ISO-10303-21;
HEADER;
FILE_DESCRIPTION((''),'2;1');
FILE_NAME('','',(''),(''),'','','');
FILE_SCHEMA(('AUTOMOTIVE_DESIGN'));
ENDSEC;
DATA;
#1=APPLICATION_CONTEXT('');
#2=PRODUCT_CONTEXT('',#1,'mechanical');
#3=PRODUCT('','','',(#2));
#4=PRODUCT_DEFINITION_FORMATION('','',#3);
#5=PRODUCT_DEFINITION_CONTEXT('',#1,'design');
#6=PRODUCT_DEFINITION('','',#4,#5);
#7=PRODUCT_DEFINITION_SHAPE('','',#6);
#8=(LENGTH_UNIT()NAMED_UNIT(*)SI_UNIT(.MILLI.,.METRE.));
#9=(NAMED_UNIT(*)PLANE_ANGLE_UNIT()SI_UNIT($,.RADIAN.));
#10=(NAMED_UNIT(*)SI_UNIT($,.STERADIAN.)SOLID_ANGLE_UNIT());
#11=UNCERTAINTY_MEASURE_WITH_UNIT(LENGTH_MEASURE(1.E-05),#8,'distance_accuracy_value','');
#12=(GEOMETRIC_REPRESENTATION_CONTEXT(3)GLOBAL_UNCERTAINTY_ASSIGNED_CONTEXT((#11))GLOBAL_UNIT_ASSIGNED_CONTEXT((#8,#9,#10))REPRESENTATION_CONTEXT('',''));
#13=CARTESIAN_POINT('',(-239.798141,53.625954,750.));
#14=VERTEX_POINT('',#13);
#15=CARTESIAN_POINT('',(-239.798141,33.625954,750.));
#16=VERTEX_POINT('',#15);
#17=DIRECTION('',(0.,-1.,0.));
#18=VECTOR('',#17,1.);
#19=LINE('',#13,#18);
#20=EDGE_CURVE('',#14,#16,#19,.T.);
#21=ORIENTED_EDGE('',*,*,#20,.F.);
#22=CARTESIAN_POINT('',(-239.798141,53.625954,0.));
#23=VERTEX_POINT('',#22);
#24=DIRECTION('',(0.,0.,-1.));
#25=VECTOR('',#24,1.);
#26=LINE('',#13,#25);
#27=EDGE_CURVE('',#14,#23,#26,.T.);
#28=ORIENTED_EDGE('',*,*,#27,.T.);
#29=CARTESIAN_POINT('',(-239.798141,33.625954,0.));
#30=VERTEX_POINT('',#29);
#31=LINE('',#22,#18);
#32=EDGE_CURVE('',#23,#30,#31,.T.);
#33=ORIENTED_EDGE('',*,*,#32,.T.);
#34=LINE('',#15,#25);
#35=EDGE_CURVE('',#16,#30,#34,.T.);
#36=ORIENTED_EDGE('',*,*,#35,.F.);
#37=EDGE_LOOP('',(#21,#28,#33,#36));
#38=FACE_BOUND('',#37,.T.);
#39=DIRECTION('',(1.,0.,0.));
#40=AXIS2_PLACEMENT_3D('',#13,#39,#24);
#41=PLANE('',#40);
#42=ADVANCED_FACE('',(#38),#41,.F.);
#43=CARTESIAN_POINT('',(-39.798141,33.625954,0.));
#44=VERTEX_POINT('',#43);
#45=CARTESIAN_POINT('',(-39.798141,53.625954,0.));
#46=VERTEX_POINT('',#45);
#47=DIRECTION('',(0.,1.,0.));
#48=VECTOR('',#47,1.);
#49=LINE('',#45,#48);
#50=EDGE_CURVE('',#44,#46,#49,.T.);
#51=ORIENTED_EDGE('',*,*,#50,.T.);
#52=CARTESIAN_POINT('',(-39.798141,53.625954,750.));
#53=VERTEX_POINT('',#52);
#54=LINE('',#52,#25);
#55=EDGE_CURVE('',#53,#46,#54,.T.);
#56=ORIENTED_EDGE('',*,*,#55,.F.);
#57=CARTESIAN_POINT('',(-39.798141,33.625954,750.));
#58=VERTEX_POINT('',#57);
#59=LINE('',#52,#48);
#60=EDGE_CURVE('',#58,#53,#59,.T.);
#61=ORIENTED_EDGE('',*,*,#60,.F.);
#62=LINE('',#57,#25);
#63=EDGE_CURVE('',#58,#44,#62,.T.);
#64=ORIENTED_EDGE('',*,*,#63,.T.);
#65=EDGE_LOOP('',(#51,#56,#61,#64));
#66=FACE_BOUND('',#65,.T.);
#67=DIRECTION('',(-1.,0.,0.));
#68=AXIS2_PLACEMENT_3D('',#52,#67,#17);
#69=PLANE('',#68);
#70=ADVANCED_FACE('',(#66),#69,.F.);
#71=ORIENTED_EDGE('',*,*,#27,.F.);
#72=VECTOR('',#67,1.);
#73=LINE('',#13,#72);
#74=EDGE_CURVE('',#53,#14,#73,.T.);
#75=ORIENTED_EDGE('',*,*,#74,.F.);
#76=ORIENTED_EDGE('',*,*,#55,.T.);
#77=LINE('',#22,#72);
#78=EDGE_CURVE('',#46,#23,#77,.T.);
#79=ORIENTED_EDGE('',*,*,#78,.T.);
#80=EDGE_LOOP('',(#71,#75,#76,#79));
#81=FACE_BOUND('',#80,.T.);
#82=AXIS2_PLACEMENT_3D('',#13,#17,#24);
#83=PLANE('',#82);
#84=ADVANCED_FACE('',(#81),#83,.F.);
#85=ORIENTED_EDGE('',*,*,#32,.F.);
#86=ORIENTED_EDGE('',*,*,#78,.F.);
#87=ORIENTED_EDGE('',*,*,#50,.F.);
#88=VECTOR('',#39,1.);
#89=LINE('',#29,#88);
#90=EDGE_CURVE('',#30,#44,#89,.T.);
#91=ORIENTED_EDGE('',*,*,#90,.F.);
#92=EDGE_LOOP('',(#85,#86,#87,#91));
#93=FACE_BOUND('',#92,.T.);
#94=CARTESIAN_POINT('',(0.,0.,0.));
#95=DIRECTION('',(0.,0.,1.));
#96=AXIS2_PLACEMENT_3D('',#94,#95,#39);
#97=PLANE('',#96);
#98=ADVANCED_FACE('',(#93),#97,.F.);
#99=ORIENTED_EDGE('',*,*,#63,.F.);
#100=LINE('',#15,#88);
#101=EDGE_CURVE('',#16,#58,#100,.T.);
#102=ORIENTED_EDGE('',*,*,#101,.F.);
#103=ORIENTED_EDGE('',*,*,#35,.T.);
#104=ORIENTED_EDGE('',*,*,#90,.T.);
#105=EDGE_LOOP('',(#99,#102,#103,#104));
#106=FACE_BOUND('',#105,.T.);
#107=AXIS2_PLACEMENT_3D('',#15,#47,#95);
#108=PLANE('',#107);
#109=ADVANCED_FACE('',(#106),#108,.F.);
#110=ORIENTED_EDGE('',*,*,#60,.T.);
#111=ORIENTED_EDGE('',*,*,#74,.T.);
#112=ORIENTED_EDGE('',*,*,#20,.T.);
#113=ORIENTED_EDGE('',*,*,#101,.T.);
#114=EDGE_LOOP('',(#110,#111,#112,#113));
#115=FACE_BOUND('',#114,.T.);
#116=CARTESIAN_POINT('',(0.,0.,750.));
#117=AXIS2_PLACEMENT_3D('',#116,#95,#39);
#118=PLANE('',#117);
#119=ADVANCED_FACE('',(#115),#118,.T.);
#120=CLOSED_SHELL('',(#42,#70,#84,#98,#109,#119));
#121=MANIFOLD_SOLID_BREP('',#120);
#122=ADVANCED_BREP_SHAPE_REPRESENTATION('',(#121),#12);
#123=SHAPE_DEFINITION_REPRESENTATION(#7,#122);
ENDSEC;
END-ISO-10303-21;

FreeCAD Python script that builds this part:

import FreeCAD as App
import Part
import Sketcher

V = App.Vector
Q = App.Units.Quantity


def add_polygon(sketch, points):
    """Adds a closed chain of lines whose ends are joined by coincident constraints."""
    first, n = sketch.GeometryCount, len(points)
    for a, b in zip(points, points[1:] + points[:1]):
        sketch.addGeometry(Part.LineSegment(App.Vector(*a, 0), App.Vector(*b, 0)), False)
    for i in range(n):
        sketch.addConstraint(Sketcher.Constraint("Coincident", first + i, 2, first + (i + 1) % n, 1))

doc = App.newDocument("Part")
body = doc.addObject("PartDesign::Body", "Body")

# Sketch on XY plane
sketch1 = body.newObject("Sketcher::SketchObject", "Sketch")
sketch1.AttachmentSupport = (doc.getObject("XY_Plane"), [""])
sketch1.MapMode = "FlatFace"
add_polygon(sketch1, [(-239.798141, 53.625954), (-239.798141, 33.625954), (-39.798141, 33.625954), (-39.798141, 53.625954)])  # lines 0-3
sketch1.addConstraint(Sketcher.Constraint("Vertical", 0))
sketch1.addConstraint(Sketcher.Constraint("Horizontal", 1))
sketch1.addConstraint(Sketcher.Constraint("Vertical", 2))
sketch1.addConstraint(Sketcher.Constraint("Horizontal", 3))
sketch1.addConstraint(Sketcher.Constraint("DistanceX", 1, 1, 1, 2, Q("200 mm")))
sketch1.addConstraint(Sketcher.Constraint("DistanceY", 0, 2, 0, 1, Q("20 mm")))
sketch1.addConstraint(Sketcher.Constraint("DistanceX", 0, 2, -1, 1, Q("239.798141 mm")))
sketch1.addConstraint(Sketcher.Constraint("DistanceY", -1, 1, 0, 2, Q("33.625954 mm")))
pad1 = body.newObject("PartDesign::Pad", "Pad")
pad1.Profile = sketch1
pad1.Length = 750

doc.recompute()
